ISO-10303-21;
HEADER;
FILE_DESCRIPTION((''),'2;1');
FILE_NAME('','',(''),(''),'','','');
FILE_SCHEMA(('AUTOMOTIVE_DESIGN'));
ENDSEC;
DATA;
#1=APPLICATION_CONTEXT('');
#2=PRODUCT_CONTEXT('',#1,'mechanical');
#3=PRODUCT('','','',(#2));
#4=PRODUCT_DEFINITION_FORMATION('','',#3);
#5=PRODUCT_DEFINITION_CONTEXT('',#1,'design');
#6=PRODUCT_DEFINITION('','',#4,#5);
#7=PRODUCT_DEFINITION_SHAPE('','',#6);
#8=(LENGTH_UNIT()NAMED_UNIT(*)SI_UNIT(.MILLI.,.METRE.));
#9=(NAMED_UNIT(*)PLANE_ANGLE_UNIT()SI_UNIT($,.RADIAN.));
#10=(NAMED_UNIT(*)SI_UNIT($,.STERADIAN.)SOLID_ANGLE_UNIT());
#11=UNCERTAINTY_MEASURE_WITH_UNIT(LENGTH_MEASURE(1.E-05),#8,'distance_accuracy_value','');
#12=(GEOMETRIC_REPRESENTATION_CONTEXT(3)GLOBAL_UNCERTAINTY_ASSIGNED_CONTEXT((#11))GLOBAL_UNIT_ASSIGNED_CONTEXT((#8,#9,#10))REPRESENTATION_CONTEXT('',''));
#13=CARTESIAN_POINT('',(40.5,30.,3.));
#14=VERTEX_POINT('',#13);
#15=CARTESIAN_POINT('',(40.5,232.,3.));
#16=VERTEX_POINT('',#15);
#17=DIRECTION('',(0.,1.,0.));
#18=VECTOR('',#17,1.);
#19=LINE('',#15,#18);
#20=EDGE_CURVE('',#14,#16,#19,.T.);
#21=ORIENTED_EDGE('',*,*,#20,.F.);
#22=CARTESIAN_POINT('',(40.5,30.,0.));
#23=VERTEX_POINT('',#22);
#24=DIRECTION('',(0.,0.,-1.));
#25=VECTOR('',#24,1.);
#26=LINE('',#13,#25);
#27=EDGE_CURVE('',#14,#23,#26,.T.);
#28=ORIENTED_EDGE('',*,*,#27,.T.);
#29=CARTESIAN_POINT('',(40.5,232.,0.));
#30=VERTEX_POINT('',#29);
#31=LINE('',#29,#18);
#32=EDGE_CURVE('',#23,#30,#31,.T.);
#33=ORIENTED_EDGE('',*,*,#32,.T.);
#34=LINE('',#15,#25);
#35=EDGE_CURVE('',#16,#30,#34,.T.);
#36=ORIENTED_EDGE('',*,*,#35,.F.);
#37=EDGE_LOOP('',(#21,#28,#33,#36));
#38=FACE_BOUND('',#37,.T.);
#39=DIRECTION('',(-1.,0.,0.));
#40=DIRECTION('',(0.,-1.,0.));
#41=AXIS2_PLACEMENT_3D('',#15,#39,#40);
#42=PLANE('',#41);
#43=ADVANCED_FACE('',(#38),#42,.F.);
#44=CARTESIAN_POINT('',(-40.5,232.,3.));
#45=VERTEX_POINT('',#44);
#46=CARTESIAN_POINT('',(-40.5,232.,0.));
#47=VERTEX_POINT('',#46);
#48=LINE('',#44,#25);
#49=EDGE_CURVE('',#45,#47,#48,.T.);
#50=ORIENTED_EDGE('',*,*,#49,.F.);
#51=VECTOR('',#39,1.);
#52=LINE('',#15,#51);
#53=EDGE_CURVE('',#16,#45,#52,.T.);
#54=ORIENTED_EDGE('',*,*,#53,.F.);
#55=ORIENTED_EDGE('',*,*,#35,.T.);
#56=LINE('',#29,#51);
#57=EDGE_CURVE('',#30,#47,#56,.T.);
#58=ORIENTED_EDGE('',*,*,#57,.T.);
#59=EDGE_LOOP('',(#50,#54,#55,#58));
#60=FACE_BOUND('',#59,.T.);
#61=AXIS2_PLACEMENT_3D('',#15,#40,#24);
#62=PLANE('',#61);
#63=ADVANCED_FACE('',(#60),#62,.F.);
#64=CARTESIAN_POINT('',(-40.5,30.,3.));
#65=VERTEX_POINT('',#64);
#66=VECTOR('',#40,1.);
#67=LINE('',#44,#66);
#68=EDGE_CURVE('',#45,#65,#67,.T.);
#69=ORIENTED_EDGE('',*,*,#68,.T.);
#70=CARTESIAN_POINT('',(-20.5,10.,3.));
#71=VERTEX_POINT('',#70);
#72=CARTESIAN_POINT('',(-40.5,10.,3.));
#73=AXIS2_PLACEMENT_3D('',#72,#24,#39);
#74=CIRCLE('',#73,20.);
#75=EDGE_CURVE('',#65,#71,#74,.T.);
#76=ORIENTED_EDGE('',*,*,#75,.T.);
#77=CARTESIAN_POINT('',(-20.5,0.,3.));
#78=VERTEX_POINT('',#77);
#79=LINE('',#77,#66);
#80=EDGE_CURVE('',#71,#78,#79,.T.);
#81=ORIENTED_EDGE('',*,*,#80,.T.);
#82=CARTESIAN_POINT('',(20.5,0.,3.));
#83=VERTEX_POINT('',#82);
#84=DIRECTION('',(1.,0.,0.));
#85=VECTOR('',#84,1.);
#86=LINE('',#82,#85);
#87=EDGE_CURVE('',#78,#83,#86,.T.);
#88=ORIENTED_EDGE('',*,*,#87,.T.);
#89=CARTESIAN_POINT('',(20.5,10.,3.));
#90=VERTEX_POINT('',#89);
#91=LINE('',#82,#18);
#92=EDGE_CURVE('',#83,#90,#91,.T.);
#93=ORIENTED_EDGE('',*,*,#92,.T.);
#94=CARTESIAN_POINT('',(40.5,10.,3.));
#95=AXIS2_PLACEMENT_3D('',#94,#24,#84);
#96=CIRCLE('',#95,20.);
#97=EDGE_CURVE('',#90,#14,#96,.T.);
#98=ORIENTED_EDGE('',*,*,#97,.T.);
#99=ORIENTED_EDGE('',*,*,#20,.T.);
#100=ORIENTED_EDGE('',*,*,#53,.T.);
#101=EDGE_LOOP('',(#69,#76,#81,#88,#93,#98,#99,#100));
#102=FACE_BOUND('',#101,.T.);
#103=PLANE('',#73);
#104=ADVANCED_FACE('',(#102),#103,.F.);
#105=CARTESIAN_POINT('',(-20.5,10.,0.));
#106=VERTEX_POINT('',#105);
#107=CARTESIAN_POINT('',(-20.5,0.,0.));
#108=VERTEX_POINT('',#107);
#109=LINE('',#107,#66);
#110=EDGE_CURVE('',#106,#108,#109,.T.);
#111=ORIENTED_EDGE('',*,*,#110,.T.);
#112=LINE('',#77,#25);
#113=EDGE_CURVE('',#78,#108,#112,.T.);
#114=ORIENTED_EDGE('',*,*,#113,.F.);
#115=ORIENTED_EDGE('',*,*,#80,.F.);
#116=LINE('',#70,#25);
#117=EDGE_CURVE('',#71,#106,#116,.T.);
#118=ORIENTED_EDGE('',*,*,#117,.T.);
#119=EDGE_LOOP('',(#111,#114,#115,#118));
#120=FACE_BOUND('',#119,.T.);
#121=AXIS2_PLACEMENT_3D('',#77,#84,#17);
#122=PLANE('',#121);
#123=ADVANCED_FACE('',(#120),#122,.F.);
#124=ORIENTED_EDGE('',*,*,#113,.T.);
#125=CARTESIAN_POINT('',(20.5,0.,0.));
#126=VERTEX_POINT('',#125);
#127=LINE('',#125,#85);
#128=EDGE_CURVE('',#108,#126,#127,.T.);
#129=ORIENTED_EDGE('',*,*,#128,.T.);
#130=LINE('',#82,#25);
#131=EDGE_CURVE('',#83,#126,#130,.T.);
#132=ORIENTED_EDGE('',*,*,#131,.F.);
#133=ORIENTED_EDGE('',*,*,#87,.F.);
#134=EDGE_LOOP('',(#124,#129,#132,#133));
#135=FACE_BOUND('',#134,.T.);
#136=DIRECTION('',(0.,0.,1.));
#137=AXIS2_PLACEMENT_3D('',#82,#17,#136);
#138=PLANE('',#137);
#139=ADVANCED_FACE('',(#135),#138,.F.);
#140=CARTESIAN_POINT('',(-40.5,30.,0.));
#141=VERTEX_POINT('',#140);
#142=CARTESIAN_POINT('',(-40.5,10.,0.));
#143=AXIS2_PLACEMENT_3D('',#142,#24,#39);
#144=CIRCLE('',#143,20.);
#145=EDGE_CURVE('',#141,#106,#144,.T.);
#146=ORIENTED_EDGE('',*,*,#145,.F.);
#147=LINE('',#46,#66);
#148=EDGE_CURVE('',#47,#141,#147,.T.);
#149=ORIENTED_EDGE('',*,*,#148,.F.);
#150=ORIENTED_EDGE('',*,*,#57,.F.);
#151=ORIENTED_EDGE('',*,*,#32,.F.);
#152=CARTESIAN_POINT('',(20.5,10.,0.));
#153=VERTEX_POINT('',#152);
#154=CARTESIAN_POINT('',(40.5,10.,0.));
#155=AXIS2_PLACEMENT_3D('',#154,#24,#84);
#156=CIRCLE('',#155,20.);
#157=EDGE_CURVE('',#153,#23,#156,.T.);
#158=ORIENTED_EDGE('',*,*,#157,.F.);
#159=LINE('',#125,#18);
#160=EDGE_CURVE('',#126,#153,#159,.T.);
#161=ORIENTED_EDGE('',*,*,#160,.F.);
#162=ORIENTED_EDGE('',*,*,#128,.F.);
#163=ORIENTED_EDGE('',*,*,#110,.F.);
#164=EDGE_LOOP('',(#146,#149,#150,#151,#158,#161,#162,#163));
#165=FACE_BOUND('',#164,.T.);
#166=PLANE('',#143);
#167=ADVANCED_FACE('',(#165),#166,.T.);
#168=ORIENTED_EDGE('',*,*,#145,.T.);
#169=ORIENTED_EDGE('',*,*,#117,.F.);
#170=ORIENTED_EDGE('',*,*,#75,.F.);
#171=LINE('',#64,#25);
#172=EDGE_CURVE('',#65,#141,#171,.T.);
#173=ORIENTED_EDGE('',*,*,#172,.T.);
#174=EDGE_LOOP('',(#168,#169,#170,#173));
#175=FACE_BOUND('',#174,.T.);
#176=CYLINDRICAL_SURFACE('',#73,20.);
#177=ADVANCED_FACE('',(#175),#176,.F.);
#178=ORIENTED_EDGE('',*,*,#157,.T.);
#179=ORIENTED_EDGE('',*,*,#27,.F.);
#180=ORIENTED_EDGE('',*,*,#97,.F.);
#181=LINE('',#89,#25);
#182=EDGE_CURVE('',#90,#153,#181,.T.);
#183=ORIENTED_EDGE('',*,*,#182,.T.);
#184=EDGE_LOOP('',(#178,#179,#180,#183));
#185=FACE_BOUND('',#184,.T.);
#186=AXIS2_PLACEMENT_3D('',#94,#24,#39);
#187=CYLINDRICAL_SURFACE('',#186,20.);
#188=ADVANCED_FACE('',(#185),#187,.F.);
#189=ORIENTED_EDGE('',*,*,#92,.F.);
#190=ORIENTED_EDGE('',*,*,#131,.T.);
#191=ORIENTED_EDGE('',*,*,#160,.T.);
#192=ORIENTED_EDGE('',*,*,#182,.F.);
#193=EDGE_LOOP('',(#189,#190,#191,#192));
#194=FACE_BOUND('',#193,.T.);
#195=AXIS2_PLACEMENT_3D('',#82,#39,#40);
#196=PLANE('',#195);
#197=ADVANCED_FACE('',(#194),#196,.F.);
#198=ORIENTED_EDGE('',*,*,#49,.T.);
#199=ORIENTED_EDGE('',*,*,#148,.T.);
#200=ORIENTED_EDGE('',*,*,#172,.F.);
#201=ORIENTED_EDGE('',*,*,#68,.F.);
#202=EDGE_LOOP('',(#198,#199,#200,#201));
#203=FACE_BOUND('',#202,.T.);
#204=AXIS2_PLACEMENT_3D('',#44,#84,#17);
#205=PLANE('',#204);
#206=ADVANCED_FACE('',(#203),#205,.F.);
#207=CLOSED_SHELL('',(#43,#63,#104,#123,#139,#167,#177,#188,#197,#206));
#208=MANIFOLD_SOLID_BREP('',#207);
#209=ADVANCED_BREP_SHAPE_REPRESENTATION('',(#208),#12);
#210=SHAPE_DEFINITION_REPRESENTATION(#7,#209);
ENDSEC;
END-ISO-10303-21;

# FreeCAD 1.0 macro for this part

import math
import FreeCAD as App
import Part
import Sketcher

V = App.Vector

doc = App.newDocument("Part")
body = doc.addObject("PartDesign::Body", "Body")

# Sketch on XY plane
sketch1 = body.newObject("Sketcher::SketchObject", "Sketch")
sketch1.AttachmentSupport = (doc.getObject("XY_Plane"), [""])
sketch1.MapMode = "FlatFace"
sketch1.addGeometry(Part.LineSegment(V(40.5, 232, 0), V(-40.5, 232, 0)), False)
sketch1.addGeometry(Part.LineSegment(V(-40.5, 232, 0), V(-40.5, 30, 0)), False)
sketch1.addGeometry(Part.ArcOfCircle(Part.Circle(V(-40.5, 10, 0), V(0, 0, 1), 20), math.radians(0), math.radians(90)), False)
sketch1.addGeometry(Part.LineSegment(V(-20.5, 10, 0), V(-20.5, 0, 0)), False)
sketch1.addGeometry(Part.LineSegment(V(-20.5, 0, 0), V(20.5, 0, 0)), False)
sketch1.addGeometry(Part.LineSegment(V(20.5, 0, 0), V(20.5, 10, 0)), False)
sketch1.addGeometry(Part.ArcOfCircle(Part.Circle(V(40.5, 10, 0), V(0, 0, 1), 20), math.radians(90), math.radians(180)), False)
sketch1.addGeometry(Part.LineSegment(V(40.5, 30, 0), V(40.5, 232, 0)), False)
sketch1.addConstraint(Sketcher.Constraint("Coincident", 0, 2, 1, 1))
sketch1.addConstraint(Sketcher.Constraint("Coincident", 1, 2, 2, 2))
sketch1.addConstraint(Sketcher.Constraint("Tangent", 2, 1, 3, 1))
sketch1.addConstraint(Sketcher.Constraint("Coincident", 3, 2, 4, 1))
sketch1.addConstraint(Sketcher.Constraint("Coincident", 4, 2, 5, 1))
sketch1.addConstraint(Sketcher.Constraint("Tangent", 5, 2, 6, 2))
sketch1.addConstraint(Sketcher.Constraint("Coincident", 6, 1, 7, 1))
sketch1.addConstraint(Sketcher.Constraint("Coincident", 7, 2, 0, 1))
sketch1.addConstraint(Sketcher.Constraint("Horizontal", 0))
sketch1.addConstraint(Sketcher.Constraint("Vertical", 1))
sketch1.addConstraint(Sketcher.Constraint("Vertical", 3))
sketch1.addConstraint(Sketcher.Constraint("Horizontal", 4))
sketch1.addConstraint(Sketcher.Constraint("Vertical", 5))
sketch1.addConstraint(Sketcher.Constraint("Vertical", 7))
sketch1.addConstraint(Sketcher.Constraint("Equal", 2, 6))
sketch1.addConstraint(Sketcher.Constraint("Symmetric", 3, 2, 4, 2, -1, 1))
sketch1.addConstraint(Sketcher.Constraint("Symmetric", 1, 2, 6, 1, -2))
sketch1.addConstraint(Sketcher.Constraint("Vertical", 2, 3, 0, 2))
sketch1.addConstraint(Sketcher.Constraint("Radius", 2, 20.0))
sketch1.addConstraint(Sketcher.Constraint("DistanceX", 0, 2, 0, 1, 81.0))
sketch1.addConstraint(Sketcher.Constraint("DistanceY", 1, 2, 1, 1, 202.0))
sketch1.addConstraint(Sketcher.Constraint("DistanceY", 3, 2, 3, 1, 10.0))
pad1 = body.newObject("PartDesign::Pad", "Pad")
pad1.Profile = sketch1
pad1.Length = 3

doc.recompute()
